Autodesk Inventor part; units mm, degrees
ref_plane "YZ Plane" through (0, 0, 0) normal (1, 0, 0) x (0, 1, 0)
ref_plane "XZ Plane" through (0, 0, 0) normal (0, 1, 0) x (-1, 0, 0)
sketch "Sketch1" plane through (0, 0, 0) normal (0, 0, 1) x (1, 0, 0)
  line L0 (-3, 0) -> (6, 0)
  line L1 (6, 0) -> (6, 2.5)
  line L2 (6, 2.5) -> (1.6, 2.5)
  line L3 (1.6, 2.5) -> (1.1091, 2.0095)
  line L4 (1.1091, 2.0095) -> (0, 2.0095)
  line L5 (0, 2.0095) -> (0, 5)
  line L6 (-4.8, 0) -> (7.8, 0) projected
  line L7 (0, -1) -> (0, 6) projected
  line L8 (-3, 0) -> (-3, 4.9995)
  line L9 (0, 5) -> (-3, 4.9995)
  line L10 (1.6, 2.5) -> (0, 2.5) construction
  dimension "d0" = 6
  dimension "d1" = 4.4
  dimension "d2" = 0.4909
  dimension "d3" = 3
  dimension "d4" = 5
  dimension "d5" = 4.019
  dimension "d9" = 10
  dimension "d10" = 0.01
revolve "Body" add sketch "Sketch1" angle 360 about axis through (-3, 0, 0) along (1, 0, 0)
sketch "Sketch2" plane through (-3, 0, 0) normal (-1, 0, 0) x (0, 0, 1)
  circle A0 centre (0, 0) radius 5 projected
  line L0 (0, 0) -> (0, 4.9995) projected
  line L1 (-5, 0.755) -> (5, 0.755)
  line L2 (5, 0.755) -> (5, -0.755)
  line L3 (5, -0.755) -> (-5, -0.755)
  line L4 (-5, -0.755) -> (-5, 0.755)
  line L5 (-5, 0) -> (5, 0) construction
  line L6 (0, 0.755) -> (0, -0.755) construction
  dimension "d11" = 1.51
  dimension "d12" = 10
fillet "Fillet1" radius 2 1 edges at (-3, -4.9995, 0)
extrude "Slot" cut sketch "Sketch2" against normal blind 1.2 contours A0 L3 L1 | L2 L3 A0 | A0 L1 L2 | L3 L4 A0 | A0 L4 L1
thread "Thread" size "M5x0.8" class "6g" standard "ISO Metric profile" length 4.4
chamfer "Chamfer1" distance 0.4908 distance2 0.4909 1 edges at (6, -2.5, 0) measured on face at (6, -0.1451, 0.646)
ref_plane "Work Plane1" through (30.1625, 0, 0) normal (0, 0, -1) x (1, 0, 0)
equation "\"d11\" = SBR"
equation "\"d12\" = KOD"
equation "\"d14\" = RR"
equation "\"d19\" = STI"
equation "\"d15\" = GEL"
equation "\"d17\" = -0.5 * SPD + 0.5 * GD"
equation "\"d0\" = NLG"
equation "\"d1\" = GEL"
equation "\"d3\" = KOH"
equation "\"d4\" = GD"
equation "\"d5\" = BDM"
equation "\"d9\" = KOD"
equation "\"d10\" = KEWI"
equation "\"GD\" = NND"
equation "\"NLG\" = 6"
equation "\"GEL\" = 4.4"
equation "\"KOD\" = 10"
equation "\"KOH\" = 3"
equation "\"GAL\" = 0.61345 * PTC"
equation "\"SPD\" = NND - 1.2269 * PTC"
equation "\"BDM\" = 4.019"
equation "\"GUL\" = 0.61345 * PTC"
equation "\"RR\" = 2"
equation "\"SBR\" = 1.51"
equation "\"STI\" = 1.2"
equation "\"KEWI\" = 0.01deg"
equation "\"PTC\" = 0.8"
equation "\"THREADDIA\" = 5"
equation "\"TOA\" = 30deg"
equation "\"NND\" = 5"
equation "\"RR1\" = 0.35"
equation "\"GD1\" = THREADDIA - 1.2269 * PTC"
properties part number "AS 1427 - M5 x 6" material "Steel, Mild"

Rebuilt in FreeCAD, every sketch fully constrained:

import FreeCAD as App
import Part
import Sketcher
from FreeCAD import Vector
Q = App.Units.Quantity


def edges_at(feature, points):
    """Names of the edges that pass closest to the given points."""
    edges = feature.Shape.Edges
    near = lambda p: min(range(len(edges)), key=lambda i: edges[i].distToShape(Part.Vertex(*p))[0])
    return sorted({f"Edge{near(p) + 1}" for p in points})

doc = App.newDocument("Part")
body = doc.addObject("PartDesign::Body", "Body")

sketch1 = body.newObject("Sketcher::SketchObject", "Sketch")
sketch1.AttachmentSupport = (doc.getObject("XY_Plane"), [""])
sketch1.MapMode = "FlatFace"
sketch1.addGeometry([
    Part.LineSegment(Vector(-3, 4.9995, 0), Vector(-3, 0, 0)),
    Part.LineSegment(Vector(-3, 0, 0), Vector(6, 0, 0)),
    Part.LineSegment(Vector(6, 0, 0), Vector(6, 2.5, 0)),
    Part.LineSegment(Vector(6, 2.5, 0), Vector(1.6, 2.5, 0)),
    Part.LineSegment(Vector(1.6, 2.5, 0), Vector(1.1091, 2.0095, 0)),
    Part.LineSegment(Vector(1.1091, 2.0095, 0), Vector(0, 2.0095, 0)),
    Part.LineSegment(Vector(0, 2.0095, 0), Vector(0, 5, 0)),
    Part.LineSegment(Vector(0, 5, 0), Vector(-3, 4.9995, 0)),
], False)
sketch1.addConstraint([
    Sketcher.Constraint("Coincident", 0, 2, 1, 1),
    Sketcher.Constraint("Coincident", 1, 2, 2, 1),
    Sketcher.Constraint("Coincident", 2, 2, 3, 1),
    Sketcher.Constraint("Coincident", 3, 2, 4, 1),
    Sketcher.Constraint("Coincident", 4, 2, 5, 1),
    Sketcher.Constraint("Coincident", 5, 2, 6, 1),
    Sketcher.Constraint("Coincident", 6, 2, 7, 1),
    Sketcher.Constraint("Coincident", 7, 2, 0, 1),
    Sketcher.Constraint("Vertical", 0),
    Sketcher.Constraint("Horizontal", 1),
    Sketcher.Constraint("Vertical", 2),
    Sketcher.Constraint("Horizontal", 3),
    Sketcher.Constraint("Horizontal", 5),
    Sketcher.Constraint("Vertical", 6),
    Sketcher.Constraint("PointOnObject", 0, 2, -1),
    Sketcher.Constraint("PointOnObject", 5, 2, -2),
    Sketcher.Constraint("Distance", 7, Q("3 mm")),
    Sketcher.Constraint("DistanceX", 3, 2, 3, 1, Q("4.4 mm")),
    Sketcher.Constraint("DistanceX", -1, 1, 1, 2, Q("6 mm")),
    Sketcher.Constraint("DistanceY", -1, 1, 6, 2, Q("5 mm")),
    Sketcher.Constraint("DistanceY", 0, 2, 0, 1, Q("4.9995 mm")),
    Sketcher.Constraint("DistanceY", 2, 1, 2, 2, Q("2.5 mm")),
    Sketcher.Constraint("DistanceX", 4, 2, 3, 2, Q("0.491 mm")),
    Sketcher.Constraint("DistanceY", 4, 2, 3, 2, Q("0.4905 mm")),
])
revolution = body.newObject("PartDesign::Revolution", "Revolution")
revolution.Profile = sketch1
revolution.ReferenceAxis = (sketch1, ["H_Axis"])
revolution.Angle = 360
doc.recompute()

fillet = body.newObject("PartDesign::Fillet", "Fillet")
fillet.Base = (revolution, edges_at(revolution, [(-3, -5, 0)]))
fillet.Radius = 2

sketch2 = body.newObject("Sketcher::SketchObject", "Sketch001")
sketch2.AttachmentSupport = (doc.getObject("YZ_Plane"), [""])
sketch2.MapMode = "FlatFace"
sketch2.AttachmentOffset = App.Placement(Vector(0, 0, -3), App.Rotation())
sketch2.addGeometry([
    Part.LineSegment(Vector(-0.755, 5, 0), Vector(0.755, 5, 0)),
    Part.LineSegment(Vector(0.755, 5, 0), Vector(0.755, -5, 0)),
    Part.LineSegment(Vector(0.755, -5, 0), Vector(-0.755, -5, 0)),
    Part.LineSegment(Vector(-0.755, -5, 0), Vector(-0.755, 5, 0)),
], False)
sketch2.addConstraint([
    Sketcher.Constraint("Coincident", 0, 2, 1, 1),
    Sketcher.Constraint("Coincident", 1, 2, 2, 1),
    Sketcher.Constraint("Coincident", 2, 2, 3, 1),
    Sketcher.Constraint("Coincident", 3, 2, 0, 1),
    Sketcher.Constraint("Horizontal", 0),
    Sketcher.Constraint("Vertical", 1),
    Sketcher.Constraint("Horizontal", 2),
    Sketcher.Constraint("Vertical", 3),
    Sketcher.Constraint("Symmetric", 0, 2, 2, 2, -1, 1),
    Sketcher.Constraint("DistanceY", 1, 2, 1, 1, Q("10 mm")),
    Sketcher.Constraint("DistanceX", 0, 1, 0, 2, Q("1.51 mm")),
])
pocket1 = body.newObject("PartDesign::Pocket", "Pocket")
pocket1.Profile = sketch2
pocket1.Length = 1.2
pocket1.Reversed = True
doc.recompute()

chamfer = body.newObject("PartDesign::Chamfer", "Chamfer")
chamfer.Base = (pocket1, edges_at(pocket1, [(6, -2.5, 0)]))
chamfer.ChamferType = "Two distances"
chamfer.Size = 0.4908
chamfer.Size2 = 0.4909

doc.recompute()
